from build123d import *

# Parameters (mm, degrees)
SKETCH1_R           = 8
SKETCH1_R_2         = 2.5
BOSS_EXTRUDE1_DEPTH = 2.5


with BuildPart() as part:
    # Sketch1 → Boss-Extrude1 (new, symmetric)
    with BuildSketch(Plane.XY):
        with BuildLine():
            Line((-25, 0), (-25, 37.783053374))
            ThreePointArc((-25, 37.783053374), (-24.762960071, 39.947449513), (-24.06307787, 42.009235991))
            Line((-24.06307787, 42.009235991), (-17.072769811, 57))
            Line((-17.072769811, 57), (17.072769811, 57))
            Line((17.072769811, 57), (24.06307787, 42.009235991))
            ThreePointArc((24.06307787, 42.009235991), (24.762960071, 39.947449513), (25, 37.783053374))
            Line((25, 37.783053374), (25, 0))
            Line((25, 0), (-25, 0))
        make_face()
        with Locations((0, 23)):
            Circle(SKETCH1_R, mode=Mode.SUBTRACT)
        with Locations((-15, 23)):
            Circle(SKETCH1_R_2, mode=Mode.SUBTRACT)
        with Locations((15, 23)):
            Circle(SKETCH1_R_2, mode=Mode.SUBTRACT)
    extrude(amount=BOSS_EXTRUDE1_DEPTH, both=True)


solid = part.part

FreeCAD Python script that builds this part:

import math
import FreeCAD as App
import Part
import Sketcher

V = App.Vector
Q = App.Units.Quantity

doc = App.newDocument("Part")
body = doc.addObject("PartDesign::Body", "Body")

# Sketch on XY plane
sketch1 = body.newObject("Sketcher::SketchObject", "Sketch")
sketch1.AttachmentSupport = (doc.getObject("XY_Plane"), [""])
sketch1.MapMode = "FlatFace"
sketch1.addGeometry(Part.LineSegment(V(-25, 37.8, 0), V(-25, 0, 0)), False)
sketch1.addGeometry(Part.LineSegment(V(-25, 0, 0), V(25, 0, 0)), False)
sketch1.addGeometry(Part.LineSegment(V(25, 0, 0), V(25, 37.8, 0)), False)
sketch1.addGeometry(Part.ArcOfCircle(Part.Circle(V(15, 37.8, 0), V(0, 0, 1), 10), math.radians(0), math.radians(25)), False)
sketch1.addGeometry(Part.LineSegment(V(24.1, 42, 0), V(17.1, 57, 0)), False)
sketch1.addGeometry(Part.LineSegment(V(17.1, 57, 0), V(-17.1, 57, 0)), False)
sketch1.addGeometry(Part.LineSegment(V(-17.1, 57, 0), V(-24.1, 42, 0)), False)
sketch1.addGeometry(Part.ArcOfCircle(Part.Circle(V(-15, 37.8, 0), V(0, 0, 1), 10), math.radians(155), math.radians(180)), False)
sketch1.addGeometry(Part.Circle(V(15, 23, 0), V(0, 0, 1), 2.5), False)
sketch1.addGeometry(Part.Circle(V(0, 23, 0), V(0, 0, 1), 8), False)
sketch1.addGeometry(Part.Circle(V(-15, 23, 0), V(0, 0, 1), 2.5), False)
sketch1.addConstraint(Sketcher.Constraint("Coincident", 0, 2, 1, 1))
sketch1.addConstraint(Sketcher.Constraint("Coincident", 1, 2, 2, 1))
sketch1.addConstraint(Sketcher.Constraint("Tangent", 2, 2, 3, 1))
sketch1.addConstraint(Sketcher.Constraint("Tangent", 3, 2, 4, 1))
sketch1.addConstraint(Sketcher.Constraint("Coincident", 4, 2, 5, 1))
sketch1.addConstraint(Sketcher.Constraint("Coincident", 5, 2, 6, 1))
sketch1.addConstraint(Sketcher.Constraint("Tangent", 6, 2, 7, 1))
sketch1.addConstraint(Sketcher.Constraint("Tangent", 7, 2, 0, 1))
sketch1.addConstraint(Sketcher.Constraint("Vertical", 0))
sketch1.addConstraint(Sketcher.Constraint("Horizontal", 1))
sketch1.addConstraint(Sketcher.Constraint("Vertical", 2))
sketch1.addConstraint(Sketcher.Constraint("Horizontal", 5))
sketch1.addConstraint(Sketcher.Constraint("Equal", 3, 7))
sketch1.addConstraint(Sketcher.Constraint("Equal", 8, 10))
sketch1.addConstraint(Sketcher.Constraint("Symmetric", 0, 2, 1, 2, -1, 1))
sketch1.addConstraint(Sketcher.Constraint("Symmetric", 8, 3, 10, 3, -2))
sketch1.addConstraint(Sketcher.Constraint("Symmetric", 3, 2, 6, 2, -2))
sketch1.addConstraint(Sketcher.Constraint("PointOnObject", 9, 3, -2))
sketch1.addConstraint(Sketcher.Constraint("Horizontal", 8, 3, 9, 3))
sketch1.addConstraint(Sketcher.Constraint("Vertical", 3, 3, 8, 3))
sketch1.addConstraint(Sketcher.Constraint("Diameter", 8, 5.0))
sketch1.addConstraint(Sketcher.Constraint("Diameter", 9, 16.0))
sketch1.addConstraint(Sketcher.Constraint("Radius", 3, 10.0))
sketch1.addConstraint(Sketcher.Constraint("DistanceX", 1, 1, 1, 2, 50.0))
sketch1.addConstraint(Sketcher.Constraint("Angle", 4, Q("115 deg")))
sketch1.addConstraint(Sketcher.Constraint("DistanceY", -1, 1, 8, 3, 23.0))
sketch1.addConstraint(Sketcher.Constraint("DistanceY", -1, 1, 4, 2, 57.0))
sketch1.addConstraint(Sketcher.Constraint("DistanceX", 5, 2, 5, 1, 34.14554))
pad1 = body.newObject("PartDesign::Pad", "Pad")
pad1.Profile = sketch1
pad1.Length = 5
pad1.Midplane = True

doc.recompute()
